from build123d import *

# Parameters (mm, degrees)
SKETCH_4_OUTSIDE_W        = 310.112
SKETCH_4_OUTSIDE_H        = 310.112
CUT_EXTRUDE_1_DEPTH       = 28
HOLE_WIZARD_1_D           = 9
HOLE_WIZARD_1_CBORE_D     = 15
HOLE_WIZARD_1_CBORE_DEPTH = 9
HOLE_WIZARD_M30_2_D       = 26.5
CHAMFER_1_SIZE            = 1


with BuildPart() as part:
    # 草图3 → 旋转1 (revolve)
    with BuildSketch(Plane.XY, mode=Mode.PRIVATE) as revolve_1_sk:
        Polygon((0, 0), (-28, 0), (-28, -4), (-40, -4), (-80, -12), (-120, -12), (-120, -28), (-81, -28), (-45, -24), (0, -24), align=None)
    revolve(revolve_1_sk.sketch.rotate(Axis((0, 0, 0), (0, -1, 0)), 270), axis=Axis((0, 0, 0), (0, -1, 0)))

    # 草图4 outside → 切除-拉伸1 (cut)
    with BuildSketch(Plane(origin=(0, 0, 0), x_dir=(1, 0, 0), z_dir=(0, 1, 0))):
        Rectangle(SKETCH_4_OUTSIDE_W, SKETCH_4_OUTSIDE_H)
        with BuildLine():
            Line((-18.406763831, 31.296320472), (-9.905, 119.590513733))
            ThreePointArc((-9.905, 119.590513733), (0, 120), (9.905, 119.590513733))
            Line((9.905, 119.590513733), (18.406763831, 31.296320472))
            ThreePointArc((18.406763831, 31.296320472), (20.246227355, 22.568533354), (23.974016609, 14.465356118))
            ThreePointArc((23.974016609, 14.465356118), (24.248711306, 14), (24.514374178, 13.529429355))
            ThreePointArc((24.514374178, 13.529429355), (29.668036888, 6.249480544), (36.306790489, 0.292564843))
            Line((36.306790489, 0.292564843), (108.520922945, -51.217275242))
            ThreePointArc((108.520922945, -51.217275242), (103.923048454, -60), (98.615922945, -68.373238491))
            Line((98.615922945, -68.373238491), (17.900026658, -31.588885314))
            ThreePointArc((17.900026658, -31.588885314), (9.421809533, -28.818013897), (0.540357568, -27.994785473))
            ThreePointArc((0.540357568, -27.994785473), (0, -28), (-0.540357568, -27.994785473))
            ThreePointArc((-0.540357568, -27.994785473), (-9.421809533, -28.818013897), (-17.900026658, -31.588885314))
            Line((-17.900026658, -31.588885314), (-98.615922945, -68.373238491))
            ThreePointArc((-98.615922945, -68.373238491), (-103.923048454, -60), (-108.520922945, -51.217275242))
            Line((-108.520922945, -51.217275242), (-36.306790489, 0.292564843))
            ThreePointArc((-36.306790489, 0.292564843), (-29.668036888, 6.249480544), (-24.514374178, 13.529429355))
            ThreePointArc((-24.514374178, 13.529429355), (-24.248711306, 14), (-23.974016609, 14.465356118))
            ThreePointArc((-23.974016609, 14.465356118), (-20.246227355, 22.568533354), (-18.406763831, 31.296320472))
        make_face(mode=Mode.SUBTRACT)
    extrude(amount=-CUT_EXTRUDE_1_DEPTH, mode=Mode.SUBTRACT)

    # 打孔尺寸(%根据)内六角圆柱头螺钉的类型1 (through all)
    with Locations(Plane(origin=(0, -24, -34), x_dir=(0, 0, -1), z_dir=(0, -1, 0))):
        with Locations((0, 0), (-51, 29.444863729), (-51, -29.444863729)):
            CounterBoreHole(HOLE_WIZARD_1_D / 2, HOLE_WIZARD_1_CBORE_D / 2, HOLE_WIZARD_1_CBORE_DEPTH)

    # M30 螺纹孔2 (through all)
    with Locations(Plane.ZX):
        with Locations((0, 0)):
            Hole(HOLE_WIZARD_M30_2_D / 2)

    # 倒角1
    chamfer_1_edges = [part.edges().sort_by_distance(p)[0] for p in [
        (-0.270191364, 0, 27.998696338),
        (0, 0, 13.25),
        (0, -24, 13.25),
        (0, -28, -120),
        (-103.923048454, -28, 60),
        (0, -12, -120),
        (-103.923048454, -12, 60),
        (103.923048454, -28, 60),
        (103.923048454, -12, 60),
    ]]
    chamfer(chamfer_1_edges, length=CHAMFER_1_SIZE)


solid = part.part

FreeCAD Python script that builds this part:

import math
import FreeCAD as App
import Part
import Sketcher

V = App.Vector
Q = App.Units.Quantity


def edges_at(feature, points):
    """Names of the edges that pass closest to the given points."""
    edges = feature.Shape.Edges
    near = lambda p: min(range(len(edges)), key=lambda i: edges[i].distToShape(Part.Vertex(*p))[0])
    return sorted({f"Edge{near(p) + 1}" for p in points})


def add_polygon(sketch, points):
    """Adds a closed chain of lines whose ends are joined by coincident constraints."""
    first, n = sketch.GeometryCount, len(points)
    for a, b in zip(points, points[1:] + points[:1]):
        sketch.addGeometry(Part.LineSegment(App.Vector(*a, 0), App.Vector(*b, 0)), False)
    for i in range(n):
        sketch.addConstraint(Sketcher.Constraint("Coincident", first + i, 2, first + (i + 1) % n, 1))

doc = App.newDocument("Part")
body = doc.addObject("PartDesign::Body", "Body")

sketch1 = doc.addObject("Sketcher::SketchObject", "Sketch")
body.addObject(sketch1)
sketch1.AttachmentSupport = (doc.XY_Plane, [""])
sketch1.MapMode = "FlatFace"
add_polygon(sketch1, [(0, 0), (-28, 0), (-28, -4), (-40, -4), (-80, -12), (-120, -12), (-120, -28), (-81, -28), (-45, -24), (0, -24)])
sketch1.addConstraint(Sketcher.Constraint("Horizontal", 0))
sketch1.addConstraint(Sketcher.Constraint("Vertical", 1))
sketch1.addConstraint(Sketcher.Constraint("Horizontal", 2))
sketch1.addConstraint(Sketcher.Constraint("Horizontal", 4))
sketch1.addConstraint(Sketcher.Constraint("Vertical", 5))
sketch1.addConstraint(Sketcher.Constraint("Horizontal", 6))
sketch1.addConstraint(Sketcher.Constraint("Horizontal", 8))
sketch1.addConstraint(Sketcher.Constraint("Vertical", 9))
sketch1.addConstraint(Sketcher.Constraint("Coincident", 9, 2, -1, 1))
sketch1.addConstraint(Sketcher.Constraint("DistanceX", 0, 2, 0, 1, 28.0))
sketch1.addConstraint(Sketcher.Constraint("DistanceX", 2, 2, 2, 1, 12.0))
sketch1.addConstraint(Sketcher.Constraint("DistanceX", 4, 2, 4, 1, 40.0))
sketch1.addConstraint(Sketcher.Constraint("DistanceX", 6, 1, 6, 2, 39.0))
sketch1.addConstraint(Sketcher.Constraint("DistanceX", 8, 1, 8, 2, 45.0))
sketch1.addConstraint(Sketcher.Constraint("DistanceY", 1, 2, 1, 1, 4.0))
sketch1.addConstraint(Sketcher.Constraint("DistanceY", 5, 2, 5, 1, 16.0))
sketch1.addConstraint(Sketcher.Constraint("DistanceY", 9, 1, 9, 2, 24.0))
sketch1.addConstraint(Sketcher.Constraint("DistanceX", 3, 2, -1, 1, 80.0))
sketch1.addConstraint(Sketcher.Constraint("DistanceY", 3, 2, -1, 1, 12.0))
revolution = doc.addObject("PartDesign::Revolution", "Revolution")
body.addObject(revolution)
revolution.Profile = sketch1
revolution.ReferenceAxis = (sketch1, ["V_Axis"])
revolution.Angle = 360

sketch2 = doc.addObject("Sketcher::SketchObject", "Sketch001")
body.addObject(sketch2)
sketch2.AttachmentSupport = (doc.XZ_Plane, [""])
sketch2.MapMode = "FlatFace"
add_polygon(sketch2, [(-155.1, -155.1), (-155.1, 155.1), (155.1, 155.1), (155.1, -155.1)])
sketch2.addGeometry(Part.ArcOfCircle(Part.Circle(V(-58.2, -35.1, 0), V(0, 0, 1), 40), math.radians(5), math.radians(31)), False)
sketch2.addGeometry(Part.LineSegment(V(-18.4, -31.3, 0), V(-9.9, -119.6, 0)), False)
sketch2.addGeometry(Part.ArcOfCircle(Part.Circle(V(0, 0, 0), V(0, 0, 1), 120), math.radians(-94.73), math.radians(-85.27)), False)
sketch2.addGeometry(Part.LineSegment(V(9.9, -119.6, 0), V(18.4, -31.3, 0)), False)
sketch2.addGeometry(Part.ArcOfCircle(Part.Circle(V(58.2, -35.1, 0), V(0, 0, 1), 40), math.radians(149), math.radians(175)), False)
sketch2.addGeometry(Part.ArcOfCircle(Part.Circle(V(0, 0, 0), V(0, 0, 1), 28), math.radians(-31.11), math.radians(-28.89)), False)
sketch2.addGeometry(Part.ArcOfCircle(Part.Circle(V(59.5, -32.9, 0), V(0, 0, 1), 40), math.radians(125), math.radians(151)), False)
sketch2.addGeometry(Part.LineSegment(V(36.3, -0.3, 0), V(108.5, 51.2, 0)), False)
sketch2.addGeometry(Part.ArcOfCircle(Part.Circle(V(0, 0, 0), V(0, 0, 1), 120), math.radians(25.27), math.radians(34.73)), False)
sketch2.addGeometry(Part.LineSegment(V(98.6, 68.4, 0), V(17.9, 31.6, 0)), False)
sketch2.addGeometry(Part.ArcOfCircle(Part.Circle(V(1.3, 68, 0), V(0, 0, 1), 40), math.radians(-91), math.radians(-66)), False)
sketch2.addGeometry(Part.ArcOfCircle(Part.Circle(V(0, 0, 0), V(0, 0, 1), 28), math.radians(88.89), math.radians(91.11)), False)
sketch2.addGeometry(Part.ArcOfCircle(Part.Circle(V(-1.3, 68, 0), V(0, 0, 1), 40), math.radians(-114), math.radians(-89)), False)
sketch2.addGeometry(Part.LineSegment(V(-17.9, 31.6, 0), V(-98.6, 68.4, 0)), False)
sketch2.addGeometry(Part.ArcOfCircle(Part.Circle(V(0, 0, 0), V(0, 0, 1), 120), math.radians(145.27), math.radians(154.73)), False)
sketch2.addGeometry(Part.LineSegment(V(-108.5, 51.2, 0), V(-36.3, -0.3, 0)), False)
sketch2.addGeometry(Part.ArcOfCircle(Part.Circle(V(-59.5, -32.9, 0), V(0, 0, 1), 40), math.radians(29), math.radians(55)), False)
sketch2.addGeometry(Part.ArcOfCircle(Part.Circle(V(0, 0, 0), V(0, 0, 1), 28), math.radians(-151.11), math.radians(-148.89)), False)
sketch2.addConstraint(Sketcher.Constraint("Tangent", 4, 1, 5, 1))
sketch2.addConstraint(Sketcher.Constraint("Coincident", 5, 2, 6, 1))
sketch2.addConstraint(Sketcher.Constraint("Coincident", 6, 2, 7, 1))
sketch2.addConstraint(Sketcher.Constraint("Tangent", 7, 2, 8, 2))
sketch2.addConstraint(Sketcher.Constraint("Tangent", 8, 1, 9, 1))
sketch2.addConstraint(Sketcher.Constraint("Tangent", 9, 2, 10, 2))
sketch2.addConstraint(Sketcher.Constraint("Tangent", 10, 1, 11, 1))
sketch2.addConstraint(Sketcher.Constraint("Coincident", 11, 2, 12, 1))
sketch2.addConstraint(Sketcher.Constraint("Coincident", 12, 2, 13, 1))
sketch2.addConstraint(Sketcher.Constraint("Tangent", 13, 2, 14, 2))
sketch2.addConstraint(Sketcher.Constraint("Tangent", 14, 1, 15, 1))
sketch2.addConstraint(Sketcher.Constraint("Tangent", 15, 2, 16, 2))
sketch2.addConstraint(Sketcher.Constraint("Tangent", 16, 1, 17, 1))
sketch2.addConstraint(Sketcher.Constraint("Coincident", 17, 2, 18, 1))
sketch2.addConstraint(Sketcher.Constraint("Coincident", 18, 2, 19, 1))
sketch2.addConstraint(Sketcher.Constraint("Tangent", 19, 2, 20, 2))
sketch2.addConstraint(Sketcher.Constraint("Tangent", 20, 1, 21, 1))
sketch2.addConstraint(Sketcher.Constraint("Tangent", 21, 2, 4, 2))
sketch2.addConstraint(Sketcher.Constraint("Vertical", 0))
sketch2.addConstraint(Sketcher.Constraint("Horizontal", 1))
sketch2.addConstraint(Sketcher.Constraint("Vertical", 2))
sketch2.addConstraint(Sketcher.Constraint("Horizontal", 3))
sketch2.addConstraint(Sketcher.Constraint("Coincident", 6, 3, -1, 1))
sketch2.addConstraint(Sketcher.Constraint("Coincident", 9, 3, -1, 1))
sketch2.addConstraint(Sketcher.Constraint("Coincident", 12, 3, -1, 1))
sketch2.addConstraint(Sketcher.Constraint("Coincident", 15, 3, -1, 1))
sketch2.addConstraint(Sketcher.Constraint("Coincident", 18, 3, -1, 1))
sketch2.addConstraint(Sketcher.Constraint("Coincident", 21, 3, -1, 1))
sketch2.addConstraint(Sketcher.Constraint("Equal", 4, 8))
sketch2.addConstraint(Sketcher.Constraint("Equal", 8, 10))
sketch2.addConstraint(Sketcher.Constraint("Equal", 6, 12))
sketch2.addConstraint(Sketcher.Constraint("Equal", 10, 14))
sketch2.addConstraint(Sketcher.Constraint("Equal", 9, 15))
sketch2.addConstraint(Sketcher.Constraint("Equal", 14, 16))
sketch2.addConstraint(Sketcher.Constraint("Equal", 12, 18))
sketch2.addConstraint(Sketcher.Constraint("Equal", 16, 20))
sketch2.addConstraint(Sketcher.Constraint("Equal", 15, 21))
sketch2.addConstraint(Sketcher.Constraint("Symmetric", 0, 2, 2, 2, -1, 1))
sketch2.addConstraint(Sketcher.Constraint("Symmetric", 4, 1, 7, 2, -2))
sketch2.addConstraint(Sketcher.Constraint("Symmetric", 13, 2, 16, 1, -2))
sketch2.addConstraint(Sketcher.Constraint("Symmetric", 10, 1, 19, 2, -2))
sketch2.addConstraint(Sketcher.Constraint("Equal", 3, 0))
sketch2.addConstraint(Sketcher.Constraint("Equal", 7, 11))
sketch2.addConstraint(Sketcher.Constraint("Equal", 11, 13))
sketch2.addConstraint(Sketcher.Constraint("Radius", 4, 40.0))
sketch2.addConstraint(Sketcher.Constraint("Radius", 6, 120.0))
sketch2.addConstraint(Sketcher.Constraint("Radius", 9, 28.0))
sketch2.addConstraint(Sketcher.Constraint("Angle", 5, Q("-84.5 deg")))
sketch2.addConstraint(Sketcher.Constraint("Angle", 11, Q("35.5 deg")))
sketch2.addConstraint(Sketcher.Constraint("Angle", 13, Q("-155.5 deg")))
sketch2.addConstraint(Sketcher.Constraint("DistanceX", 1, 1, 1, 2, 310.112))
sketch2.addConstraint(Sketcher.Constraint("DistanceX", 5, 2, 6, 2, 19.81))
pocket1 = doc.addObject("PartDesign::Pocket", "Pocket")
body.addObject(pocket1)
pocket1.Profile = sketch2
pocket1.Length = 28
pocket1.Reversed = True

sketch3 = doc.addObject("Sketcher::SketchObject", "Sketch002")
body.addObject(sketch3)
sketch3.AttachmentSupport = (doc.XZ_Plane, [""])
sketch3.MapMode = "FlatFace"
sketch3.AttachmentOffset = App.Placement(V(0, 0, 24), App.Rotation())
sketch3.addGeometry(Part.Circle(V(0, -34, 0), V(0, 0, 1), 4.5), False)
sketch3.addGeometry(Part.Circle(V(29.4, 17, 0), V(0, 0, 1), 4.5), False)
sketch3.addGeometry(Part.Circle(V(-29.4, 17, 0), V(0, 0, 1), 4.5), False)
sketch3.addConstraint(Sketcher.Constraint("Equal", 0, 1))
sketch3.addConstraint(Sketcher.Constraint("Equal", 1, 2))
sketch3.addConstraint(Sketcher.Constraint("Symmetric", 1, 3, 2, 3, -2))
sketch3.addConstraint(Sketcher.Constraint("PointOnObject", 0, 3, -2))
sketch3.addConstraint(Sketcher.Constraint("Diameter", 0, 9.0))
sketch3.addConstraint(Sketcher.Constraint("DistanceY", 0, 3, -1, 1, 34.0))
sketch3.addConstraint(Sketcher.Constraint("DistanceY", -1, 1, 1, 3, 17.0))
sketch3.addConstraint(Sketcher.Constraint("DistanceX", -1, 1, 1, 3, 29.444864))
doc.recompute()
hole = doc.addObject("PartDesign::Hole", "Hole")
body.addObject(hole)
hole.Profile = sketch3
hole.ThreadType = "None"
hole.Diameter = 9
hole.DepthType = "ThroughAll"
hole.HoleCutType = "Counterbore"
hole.HoleCutDiameter = 15
hole.HoleCutDepth = 9

sketch4 = doc.addObject("Sketcher::SketchObject", "Sketch003")
body.addObject(sketch4)
sketch4.AttachmentSupport = (doc.XZ_Plane, [""])
sketch4.MapMode = "FlatFace"
sketch4.addGeometry(Part.Circle(V(0, 0, 0), V(0, 0, 1), 13), False)
sketch4.addConstraint(Sketcher.Constraint("Coincident", 0, 3, -1, 1))
sketch4.addConstraint(Sketcher.Constraint("Diameter", 0, 26.5))
doc.recompute()
hole2 = doc.addObject("PartDesign::Hole", "Hole001")
body.addObject(hole2)
hole2.Profile = sketch4
hole2.ThreadType = "None"
hole2.Diameter = 26.5
hole2.DepthType = "ThroughAll"
hole2.Reversed = True
doc.recompute()

chamfer = doc.addObject("PartDesign::Chamfer", "Chamfer")
body.addObject(chamfer)
chamfer.Base = (hole2, edges_at(hole2, [
    (-24.112, 0, 14.233),
    (0, 0, 13.25),
    (0, -24, 13.25),
    (0, -28, -120),
    (-103.923, -28, 60),
    (0, -12, -120),
    (-103.923, -12, 60),
    (103.923, -28, 60),
    (103.923, -12, 60),
]))
chamfer.Size = 1

doc.recompute()
